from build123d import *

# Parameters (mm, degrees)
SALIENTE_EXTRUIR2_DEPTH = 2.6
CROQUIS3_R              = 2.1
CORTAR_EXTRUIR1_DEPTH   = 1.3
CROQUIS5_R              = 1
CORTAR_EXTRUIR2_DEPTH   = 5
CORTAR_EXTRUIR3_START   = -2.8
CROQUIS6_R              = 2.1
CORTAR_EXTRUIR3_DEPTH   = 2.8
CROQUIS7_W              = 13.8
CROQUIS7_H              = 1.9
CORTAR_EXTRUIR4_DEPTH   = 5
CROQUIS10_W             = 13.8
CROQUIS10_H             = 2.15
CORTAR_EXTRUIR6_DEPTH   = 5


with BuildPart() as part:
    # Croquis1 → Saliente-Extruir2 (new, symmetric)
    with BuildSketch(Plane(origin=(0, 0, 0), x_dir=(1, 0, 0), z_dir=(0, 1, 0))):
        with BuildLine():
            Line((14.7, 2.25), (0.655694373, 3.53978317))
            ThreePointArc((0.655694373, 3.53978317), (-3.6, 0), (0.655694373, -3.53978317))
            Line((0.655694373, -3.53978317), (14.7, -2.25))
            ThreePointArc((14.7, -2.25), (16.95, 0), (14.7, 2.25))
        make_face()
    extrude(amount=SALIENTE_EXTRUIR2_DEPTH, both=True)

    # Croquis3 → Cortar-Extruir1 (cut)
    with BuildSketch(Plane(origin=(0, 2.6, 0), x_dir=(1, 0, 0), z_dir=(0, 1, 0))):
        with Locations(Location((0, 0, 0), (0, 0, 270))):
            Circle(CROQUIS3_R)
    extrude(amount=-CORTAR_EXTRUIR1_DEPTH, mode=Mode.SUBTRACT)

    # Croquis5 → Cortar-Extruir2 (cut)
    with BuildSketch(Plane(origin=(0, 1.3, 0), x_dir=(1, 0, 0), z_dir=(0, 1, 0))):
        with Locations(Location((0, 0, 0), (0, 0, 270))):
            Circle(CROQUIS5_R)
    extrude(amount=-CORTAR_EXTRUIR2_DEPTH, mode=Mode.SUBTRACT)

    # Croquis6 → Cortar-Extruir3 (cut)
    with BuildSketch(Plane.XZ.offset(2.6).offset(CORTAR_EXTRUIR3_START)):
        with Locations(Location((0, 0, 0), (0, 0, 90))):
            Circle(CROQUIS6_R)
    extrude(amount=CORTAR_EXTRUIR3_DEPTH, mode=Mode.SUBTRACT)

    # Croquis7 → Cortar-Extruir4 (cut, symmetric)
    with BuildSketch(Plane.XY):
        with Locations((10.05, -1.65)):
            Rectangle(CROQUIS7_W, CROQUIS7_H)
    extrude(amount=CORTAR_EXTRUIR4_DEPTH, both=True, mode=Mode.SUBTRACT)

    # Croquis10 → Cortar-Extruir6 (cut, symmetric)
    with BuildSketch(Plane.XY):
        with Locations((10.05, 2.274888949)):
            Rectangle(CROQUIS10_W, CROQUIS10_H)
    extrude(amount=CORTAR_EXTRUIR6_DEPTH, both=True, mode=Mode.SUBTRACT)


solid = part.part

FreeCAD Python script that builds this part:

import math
import FreeCAD as App
import Part
import Sketcher
Q = App.Units.Quantity


def add_polygon(sketch, points):
    """Adds a closed chain of lines whose ends are joined by coincident constraints."""
    first, n = sketch.GeometryCount, len(points)
    for a, b in zip(points, points[1:] + points[:1]):
        sketch.addGeometry(Part.LineSegment(App.Vector(*a, 0), App.Vector(*b, 0)), False)
    for i in range(n):
        sketch.addConstraint(Sketcher.Constraint("Coincident", first + i, 2, first + (i + 1) % n, 1))

doc = App.newDocument("Part")
body = doc.addObject("PartDesign::Body", "Body")

# Sketch on XZ plane
sketch1 = body.newObject("Sketcher::SketchObject", "Sketch")
sketch1.AttachmentSupport = (doc.getObject("XZ_Plane"), [""])
sketch1.MapMode = "FlatFace"
sketch1.addGeometry([
    Part.LineSegment(App.Vector(14.7, -2.25, 0), App.Vector(0.655694, -3.539783, 0)),
    Part.ArcOfCircle(Part.Circle(App.Vector(0, 0, 0), App.Vector(0, 0, 1), 3.6), math.radians(79.505722), math.radians(280.494278)),
    Part.LineSegment(App.Vector(0.655694, 3.539783, 0), App.Vector(14.7, 2.25, 0)),
    Part.ArcOfCircle(Part.Circle(App.Vector(14.7, 0, 0), App.Vector(0, 0, 1), 2.25), math.radians(-90), math.radians(90)),
], False)
sketch1.addConstraint([
    Sketcher.Constraint("Coincident", 0, 2, 1, 2),
    Sketcher.Constraint("Coincident", 1, 1, 2, 1),
    Sketcher.Constraint("Coincident", 2, 2, 3, 2),
    Sketcher.Constraint("Coincident", 3, 1, 0, 1),
    Sketcher.Constraint("Coincident", 1, 3, -1, 1),
    Sketcher.Constraint("Symmetric", 2, 2, 3, 1, -1),
    Sketcher.Constraint("Vertical", 0, 2, 1, 1),
    Sketcher.Constraint("Vertical", 3, 3, 2, 2),
    Sketcher.Constraint("Radius", 1, Q("3.6 mm")),
    Sketcher.Constraint("Radius", 3, Q("2.25 mm")),
    Sketcher.Constraint("DistanceX", -1, 1, 3, 3, Q("14.7 mm")),
    Sketcher.Constraint("Distance", 0, Q("14.103406 mm")),
])
pad1 = body.newObject("PartDesign::Pad", "Pad")
pad1.Profile = sketch1
pad1.Length = 5.2
pad1.Midplane = True

# Sketch on XZ plane
sketch2 = body.newObject("Sketcher::SketchObject", "Sketch001")
sketch2.AttachmentSupport = (doc.getObject("XZ_Plane"), [""])
sketch2.MapMode = "FlatFace"
sketch2.AttachmentOffset = App.Placement(App.Vector(0, 0, -2.6), App.Rotation())
sketch2.addGeometry(Part.Circle(App.Vector(0, 0, 0), App.Vector(0, 0, 1), 2.1), False)
sketch2.addConstraint([
    Sketcher.Constraint("Coincident", 0, 3, -1, 1),
    Sketcher.Constraint("Diameter", 0, Q("4.2 mm")),
])
pocket1 = body.newObject("PartDesign::Pocket", "Pocket")
pocket1.Profile = sketch2
pocket1.Length = 1.3
pocket1.Reversed = True

# Sketch on XZ plane
sketch3 = body.newObject("Sketcher::SketchObject", "Sketch002")
sketch3.AttachmentSupport = (doc.getObject("XZ_Plane"), [""])
sketch3.MapMode = "FlatFace"
sketch3.AttachmentOffset = App.Placement(App.Vector(0, 0, -1.3), App.Rotation())
sketch3.addGeometry(Part.Circle(App.Vector(0, 0, 0), App.Vector(0, 0, 1), 1), False)
sketch3.addConstraint([
    Sketcher.Constraint("Coincident", 0, 3, -1, 1),
    Sketcher.Constraint("Diameter", 0, Q("2 mm")),
])
pocket2 = body.newObject("PartDesign::Pocket", "Pocket001")
pocket2.Profile = sketch3
pocket2.Length = 5
pocket2.Reversed = True

# Sketch on XZ plane
sketch4 = body.newObject("Sketcher::SketchObject", "Sketch003")
sketch4.AttachmentSupport = (doc.getObject("XZ_Plane"), [""])
sketch4.MapMode = "FlatFace"
sketch4.AttachmentOffset = App.Placement(App.Vector(0, 0, -0.2), App.Rotation())
sketch4.addGeometry(Part.Circle(App.Vector(0, 0, 0), App.Vector(0, 0, 1), 2.1), False)
sketch4.addConstraint([
    Sketcher.Constraint("Coincident", 0, 3, -1, 1),
    Sketcher.Constraint("Diameter", 0, Q("4.2 mm")),
])
pocket3 = body.newObject("PartDesign::Pocket", "Pocket002")
pocket3.Profile = sketch4
pocket3.Length = 2.8
pocket3.Reversed = True

# Sketch on XY plane
sketch5 = body.newObject("Sketcher::SketchObject", "Sketch004")
sketch5.AttachmentSupport = (doc.getObject("XY_Plane"), [""])
sketch5.MapMode = "FlatFace"
add_polygon(sketch5, [(3.15, -0.7), (3.15, -2.6), (16.95, -2.6), (16.95, -0.7)])  # lines 0-3
sketch5.addConstraint([
    Sketcher.Constraint("Vertical", 0),
    Sketcher.Constraint("Horizontal", 1),
    Sketcher.Constraint("Vertical", 2),
    Sketcher.Constraint("Horizontal", 3),
    Sketcher.Constraint("DistanceX", 1, 1, 1, 2, Q("13.8 mm")),
    Sketcher.Constraint("DistanceY", 0, 2, 0, 1, Q("1.9 mm")),
    Sketcher.Constraint("DistanceY", 0, 2, -1, 1, Q("2.6 mm")),
    Sketcher.Constraint("DistanceX", -1, 1, 0, 2, Q("3.15 mm")),
])
pocket4 = body.newObject("PartDesign::Pocket", "Pocket003")
pocket4.Profile = sketch5
pocket4.Length = 10
pocket4.Midplane = True

# Sketch on XY plane
sketch6 = body.newObject("Sketcher::SketchObject", "Sketch005")
sketch6.AttachmentSupport = (doc.getObject("XY_Plane"), [""])
sketch6.MapMode = "FlatFace"
add_polygon(sketch6, [(3.15, 3.349889), (3.15, 1.199889), (16.95, 1.199889), (16.95, 3.349889)])  # lines 0-3
sketch6.addConstraint([
    Sketcher.Constraint("Vertical", 0),
    Sketcher.Constraint("Horizontal", 1),
    Sketcher.Constraint("Vertical", 2),
    Sketcher.Constraint("Horizontal", 3),
    Sketcher.Constraint("DistanceX", 1, 1, 1, 2, Q("13.8 mm")),
    Sketcher.Constraint("DistanceY", 0, 2, 0, 1, Q("2.15 mm")),
    Sketcher.Constraint("DistanceX", -1, 1, 0, 2, Q("3.15 mm")),
    Sketcher.Constraint("DistanceY", -1, 1, 0, 2, Q("1.199889 mm")),
])
pocket5 = body.newObject("PartDesign::Pocket", "Pocket004")
pocket5.Profile = sketch6
pocket5.Length = 10
pocket5.Midplane = True

doc.recompute()
